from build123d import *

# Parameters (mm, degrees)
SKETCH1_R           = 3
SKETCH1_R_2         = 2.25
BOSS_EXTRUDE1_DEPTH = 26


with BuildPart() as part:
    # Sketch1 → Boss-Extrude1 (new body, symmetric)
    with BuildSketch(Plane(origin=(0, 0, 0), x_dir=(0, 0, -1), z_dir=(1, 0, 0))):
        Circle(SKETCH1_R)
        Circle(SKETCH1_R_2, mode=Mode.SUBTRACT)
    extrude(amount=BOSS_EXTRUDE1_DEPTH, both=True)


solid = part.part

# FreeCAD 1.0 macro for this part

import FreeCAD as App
import Part
import Sketcher
Q = App.Units.Quantity

doc = App.newDocument("Part")
body = doc.addObject("PartDesign::Body", "Body")

# Sketch on YZ plane
sketch1 = doc.addObject("Sketcher::SketchObject", "Sketch")
body.addObject(sketch1)
sketch1.AttachmentSupport = (doc.YZ_Plane, [""])
sketch1.MapMode = "FlatFace"
sketch1.addGeometry([
    Part.Circle(App.Vector(0, 0, 0), App.Vector(0, 0, 1), 3),
    Part.Circle(App.Vector(0, 0, 0), App.Vector(0, 0, 1), 2.2),
], False)
sketch1.addConstraint([
    Sketcher.Constraint("Coincident", 0, 3, -1, 1),
    Sketcher.Constraint("Coincident", 1, 3, -1, 1),
    Sketcher.Constraint("Diameter", 0, Q("6 mm")),
    Sketcher.Constraint("Diameter", 1, Q("4.5 mm")),
])
pad1 = doc.addObject("PartDesign::Pad", "Pad")
body.addObject(pad1)
pad1.Profile = sketch1
pad1.Length = 52
pad1.Midplane = True

doc.recompute()
